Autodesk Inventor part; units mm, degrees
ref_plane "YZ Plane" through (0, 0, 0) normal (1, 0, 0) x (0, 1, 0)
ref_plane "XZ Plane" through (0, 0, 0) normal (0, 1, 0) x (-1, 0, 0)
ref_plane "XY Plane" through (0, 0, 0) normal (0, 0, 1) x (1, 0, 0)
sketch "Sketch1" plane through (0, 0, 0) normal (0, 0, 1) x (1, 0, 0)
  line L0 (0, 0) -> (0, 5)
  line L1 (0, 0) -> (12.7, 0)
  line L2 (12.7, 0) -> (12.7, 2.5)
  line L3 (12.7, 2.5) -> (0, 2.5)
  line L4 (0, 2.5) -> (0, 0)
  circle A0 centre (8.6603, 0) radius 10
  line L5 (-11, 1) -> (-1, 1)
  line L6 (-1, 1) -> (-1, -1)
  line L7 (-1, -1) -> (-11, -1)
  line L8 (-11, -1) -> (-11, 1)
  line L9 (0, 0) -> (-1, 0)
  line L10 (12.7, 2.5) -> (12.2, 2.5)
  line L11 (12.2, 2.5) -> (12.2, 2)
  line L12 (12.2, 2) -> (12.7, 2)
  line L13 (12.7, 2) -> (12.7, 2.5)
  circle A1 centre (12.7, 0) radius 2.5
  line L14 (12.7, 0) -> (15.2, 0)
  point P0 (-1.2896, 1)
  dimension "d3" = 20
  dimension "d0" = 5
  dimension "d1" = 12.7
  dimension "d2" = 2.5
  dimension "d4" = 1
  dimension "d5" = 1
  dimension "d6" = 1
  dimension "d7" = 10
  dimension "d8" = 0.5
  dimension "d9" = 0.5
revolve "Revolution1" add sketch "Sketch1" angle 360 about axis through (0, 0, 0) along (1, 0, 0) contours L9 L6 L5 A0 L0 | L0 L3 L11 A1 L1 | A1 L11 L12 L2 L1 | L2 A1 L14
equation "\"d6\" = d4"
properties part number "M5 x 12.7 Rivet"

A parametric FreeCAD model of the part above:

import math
import FreeCAD as App
import Part
import Sketcher
Q = App.Units.Quantity

doc = App.newDocument("Part")
params = doc.addObject("Spreadsheet::Sheet", "Params")
for row, (alias, value) in enumerate([
    ("sketch1_radius", "10 mm"),
    ("sketch1_radius2", "2.5 mm"),
    ("sketch1_height", "1 mm"),
    ("sketch1_width", "0.5 mm"),
    ("sketch1_height2", "2.5 mm"),
    ("revolution_angle", "360 deg"),
], start=1):
    params.set(f"A{row}", alias)
    params.set(f"B{row}", "=" + value)
    params.setAlias(f"B{row}", alias)

body = doc.addObject("PartDesign::Body", "Body")

sketch1 = doc.addObject("Sketcher::SketchObject", "Sketch")
body.addObject(sketch1)
sketch1.AttachmentSupport = (doc.XY_Plane, [""])
sketch1.MapMode = "FlatFace"
sketch1.addGeometry(Part.LineSegment(App.Vector(-1, 0, 0), App.Vector(15.2, 0, 0)), False)
sketch1.addGeometry(Part.ArcOfCircle(Part.Circle(App.Vector(12.7, 0, 0), App.Vector(0, 0, 1), 2.5), math.radians(0), math.radians(90)), False)
sketch1.addGeometry(Part.LineSegment(App.Vector(12.7, 2.5, 0), App.Vector(12.7, 2, 0)), False)
sketch1.addGeometry(Part.LineSegment(App.Vector(12.7, 2, 0), App.Vector(12.2, 2, 0)), False)
sketch1.addGeometry(Part.LineSegment(App.Vector(12.2, 2, 0), App.Vector(12.2, 2.5, 0)), False)
sketch1.addGeometry(Part.LineSegment(App.Vector(12.2, 2.5, 0), App.Vector(0, 2.5, 0)), False)
sketch1.addGeometry(Part.LineSegment(App.Vector(0, 2.5, 0), App.Vector(0, 5, 0)), False)
sketch1.addGeometry(Part.ArcOfCircle(Part.Circle(App.Vector(8.66, 0, 0), App.Vector(0, 0, 1), 10), math.radians(150), math.radians(174)), False)
sketch1.addGeometry(Part.LineSegment(App.Vector(-1.29, 1, 0), App.Vector(-1, 1, 0)), False)
sketch1.addGeometry(Part.LineSegment(App.Vector(-1, 1, 0), App.Vector(-1, 0, 0)), False)
sketch1.addConstraint(Sketcher.Constraint("Coincident", 0, 2, 1, 1))
sketch1.addConstraint(Sketcher.Constraint("Coincident", 1, 2, 2, 1))
sketch1.addConstraint(Sketcher.Constraint("Coincident", 2, 2, 3, 1))
sketch1.addConstraint(Sketcher.Constraint("Coincident", 3, 2, 4, 1))
sketch1.addConstraint(Sketcher.Constraint("Coincident", 4, 2, 5, 1))
sketch1.addConstraint(Sketcher.Constraint("Coincident", 5, 2, 6, 1))
sketch1.addConstraint(Sketcher.Constraint("Coincident", 6, 2, 7, 1))
sketch1.addConstraint(Sketcher.Constraint("Coincident", 7, 2, 8, 1))
sketch1.addConstraint(Sketcher.Constraint("Coincident", 8, 2, 9, 1))
sketch1.addConstraint(Sketcher.Constraint("Coincident", 9, 2, 0, 1))
sketch1.addConstraint(Sketcher.Constraint("Horizontal", 0))
sketch1.addConstraint(Sketcher.Constraint("Vertical", 2))
sketch1.addConstraint(Sketcher.Constraint("Horizontal", 3))
sketch1.addConstraint(Sketcher.Constraint("Vertical", 4))
sketch1.addConstraint(Sketcher.Constraint("Horizontal", 5))
sketch1.addConstraint(Sketcher.Constraint("Vertical", 6))
sketch1.addConstraint(Sketcher.Constraint("Horizontal", 8))
sketch1.addConstraint(Sketcher.Constraint("Vertical", 9))
sketch1.addConstraint(Sketcher.Constraint("PointOnObject", 1, 3, -1))
sketch1.addConstraint(Sketcher.Constraint("PointOnObject", 7, 3, -1))
sketch1.addConstraint(Sketcher.Constraint("PointOnObject", 0, 2, -1))
sketch1.addConstraint(Sketcher.Constraint("PointOnObject", 5, 2, -2))
sketch1.addConstraint(Sketcher.Constraint("Horizontal", 1, 2, 4, 2))
sketch1.addConstraint(Sketcher.Constraint("Equal", 3, 2))
sketch1.addConstraint(Sketcher.Constraint("Radius", 7, Q("10 mm")))
sketch1.addConstraint(Sketcher.Constraint("Radius", 1, Q("2.5 mm")))
sketch1.addConstraint(Sketcher.Constraint("DistanceY", 9, 2, 9, 1, Q("1 mm")))
sketch1.addConstraint(Sketcher.Constraint("DistanceX", 3, 2, 3, 1, Q("0.5 mm")))
sketch1.addConstraint(Sketcher.Constraint("DistanceY", 6, 1, 6, 2, Q("2.5 mm")))
sketch1.addConstraint(Sketcher.Constraint("DistanceX", 8, 2, -1, 1, Q("1 mm")))
sketch1.addConstraint(Sketcher.Constraint("DistanceX", -1, 1, 1, 3, Q("12.7 mm")))
sketch1.addConstraint(Sketcher.Constraint("DistanceX", -1, 1, 1, 2, Q("12.7 mm")))
sketch1.setExpression("Constraints[24]", "Params.sketch1_radius")
sketch1.setExpression("Constraints[25]", "Params.sketch1_radius2")
sketch1.setExpression("Constraints[26]", "Params.sketch1_height")
sketch1.setExpression("Constraints[27]", "Params.sketch1_width")
sketch1.setExpression("Constraints[28]", "Params.sketch1_height2")
revolution = doc.addObject("PartDesign::Revolution", "Revolution")
body.addObject(revolution)
revolution.Profile = sketch1
revolution.ReferenceAxis = (sketch1, ["H_Axis"])
revolution.setExpression("Angle", "Params.revolution_angle")

doc.recompute()
